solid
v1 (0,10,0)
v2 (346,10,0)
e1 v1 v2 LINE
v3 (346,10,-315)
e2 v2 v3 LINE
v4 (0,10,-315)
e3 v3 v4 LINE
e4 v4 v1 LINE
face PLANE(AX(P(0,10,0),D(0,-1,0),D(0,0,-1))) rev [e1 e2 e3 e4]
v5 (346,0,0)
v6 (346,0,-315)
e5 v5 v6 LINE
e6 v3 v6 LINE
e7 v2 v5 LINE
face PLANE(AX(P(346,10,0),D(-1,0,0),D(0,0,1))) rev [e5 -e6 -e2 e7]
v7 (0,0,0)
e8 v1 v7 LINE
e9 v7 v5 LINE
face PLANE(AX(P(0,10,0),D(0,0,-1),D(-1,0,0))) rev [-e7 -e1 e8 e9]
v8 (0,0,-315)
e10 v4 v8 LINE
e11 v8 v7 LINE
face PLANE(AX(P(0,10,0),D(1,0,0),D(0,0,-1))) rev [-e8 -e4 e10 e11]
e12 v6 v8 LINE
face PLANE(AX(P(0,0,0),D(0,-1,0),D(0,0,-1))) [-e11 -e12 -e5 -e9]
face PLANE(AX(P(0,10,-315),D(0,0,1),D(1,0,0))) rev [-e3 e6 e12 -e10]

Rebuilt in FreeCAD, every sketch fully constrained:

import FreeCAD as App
import Part
import Sketcher
Q = App.Units.Quantity

doc = App.newDocument("Part")
body = doc.addObject("PartDesign::Body", "Body")

# Sketch on XZ plane
sketch1 = doc.addObject("Sketcher::SketchObject", "Sketch")
body.addObject(sketch1)
sketch1.AttachmentSupport = (doc.XZ_Plane, [""])
sketch1.MapMode = "FlatFace"
sketch1.addGeometry(Part.LineSegment(App.Vector(0, -315, 0), App.Vector(0, 0, 0)), False)
sketch1.addGeometry(Part.LineSegment(App.Vector(0, 0, 0), App.Vector(346, 0, 0)), False)
sketch1.addGeometry(Part.LineSegment(App.Vector(346, 0, 0), App.Vector(346, -315, 0)), False)
sketch1.addGeometry(Part.LineSegment(App.Vector(346, -315, 0), App.Vector(0, -315, 0)), False)
sketch1.addConstraint(Sketcher.Constraint("Coincident", 0, 2, 1, 1))
sketch1.addConstraint(Sketcher.Constraint("Coincident", 1, 2, 2, 1))
sketch1.addConstraint(Sketcher.Constraint("Coincident", 2, 2, 3, 1))
sketch1.addConstraint(Sketcher.Constraint("Coincident", 3, 2, 0, 1))
sketch1.addConstraint(Sketcher.Constraint("Vertical", 0))
sketch1.addConstraint(Sketcher.Constraint("Horizontal", 1))
sketch1.addConstraint(Sketcher.Constraint("Vertical", 2))
sketch1.addConstraint(Sketcher.Constraint("Horizontal", 3))
sketch1.addConstraint(Sketcher.Constraint("Coincident", 0, 2, -1, 1))
sketch1.addConstraint(Sketcher.Constraint("DistanceX", 1, 1, 1, 2, Q("346 mm")))
sketch1.addConstraint(Sketcher.Constraint("DistanceY", 0, 1, 0, 2, Q("315 mm")))
pad1 = doc.addObject("PartDesign::Pad", "Pad")
body.addObject(pad1)
pad1.Profile = sketch1
pad1.Length = 10
pad1.Reversed = True

doc.recompute()
